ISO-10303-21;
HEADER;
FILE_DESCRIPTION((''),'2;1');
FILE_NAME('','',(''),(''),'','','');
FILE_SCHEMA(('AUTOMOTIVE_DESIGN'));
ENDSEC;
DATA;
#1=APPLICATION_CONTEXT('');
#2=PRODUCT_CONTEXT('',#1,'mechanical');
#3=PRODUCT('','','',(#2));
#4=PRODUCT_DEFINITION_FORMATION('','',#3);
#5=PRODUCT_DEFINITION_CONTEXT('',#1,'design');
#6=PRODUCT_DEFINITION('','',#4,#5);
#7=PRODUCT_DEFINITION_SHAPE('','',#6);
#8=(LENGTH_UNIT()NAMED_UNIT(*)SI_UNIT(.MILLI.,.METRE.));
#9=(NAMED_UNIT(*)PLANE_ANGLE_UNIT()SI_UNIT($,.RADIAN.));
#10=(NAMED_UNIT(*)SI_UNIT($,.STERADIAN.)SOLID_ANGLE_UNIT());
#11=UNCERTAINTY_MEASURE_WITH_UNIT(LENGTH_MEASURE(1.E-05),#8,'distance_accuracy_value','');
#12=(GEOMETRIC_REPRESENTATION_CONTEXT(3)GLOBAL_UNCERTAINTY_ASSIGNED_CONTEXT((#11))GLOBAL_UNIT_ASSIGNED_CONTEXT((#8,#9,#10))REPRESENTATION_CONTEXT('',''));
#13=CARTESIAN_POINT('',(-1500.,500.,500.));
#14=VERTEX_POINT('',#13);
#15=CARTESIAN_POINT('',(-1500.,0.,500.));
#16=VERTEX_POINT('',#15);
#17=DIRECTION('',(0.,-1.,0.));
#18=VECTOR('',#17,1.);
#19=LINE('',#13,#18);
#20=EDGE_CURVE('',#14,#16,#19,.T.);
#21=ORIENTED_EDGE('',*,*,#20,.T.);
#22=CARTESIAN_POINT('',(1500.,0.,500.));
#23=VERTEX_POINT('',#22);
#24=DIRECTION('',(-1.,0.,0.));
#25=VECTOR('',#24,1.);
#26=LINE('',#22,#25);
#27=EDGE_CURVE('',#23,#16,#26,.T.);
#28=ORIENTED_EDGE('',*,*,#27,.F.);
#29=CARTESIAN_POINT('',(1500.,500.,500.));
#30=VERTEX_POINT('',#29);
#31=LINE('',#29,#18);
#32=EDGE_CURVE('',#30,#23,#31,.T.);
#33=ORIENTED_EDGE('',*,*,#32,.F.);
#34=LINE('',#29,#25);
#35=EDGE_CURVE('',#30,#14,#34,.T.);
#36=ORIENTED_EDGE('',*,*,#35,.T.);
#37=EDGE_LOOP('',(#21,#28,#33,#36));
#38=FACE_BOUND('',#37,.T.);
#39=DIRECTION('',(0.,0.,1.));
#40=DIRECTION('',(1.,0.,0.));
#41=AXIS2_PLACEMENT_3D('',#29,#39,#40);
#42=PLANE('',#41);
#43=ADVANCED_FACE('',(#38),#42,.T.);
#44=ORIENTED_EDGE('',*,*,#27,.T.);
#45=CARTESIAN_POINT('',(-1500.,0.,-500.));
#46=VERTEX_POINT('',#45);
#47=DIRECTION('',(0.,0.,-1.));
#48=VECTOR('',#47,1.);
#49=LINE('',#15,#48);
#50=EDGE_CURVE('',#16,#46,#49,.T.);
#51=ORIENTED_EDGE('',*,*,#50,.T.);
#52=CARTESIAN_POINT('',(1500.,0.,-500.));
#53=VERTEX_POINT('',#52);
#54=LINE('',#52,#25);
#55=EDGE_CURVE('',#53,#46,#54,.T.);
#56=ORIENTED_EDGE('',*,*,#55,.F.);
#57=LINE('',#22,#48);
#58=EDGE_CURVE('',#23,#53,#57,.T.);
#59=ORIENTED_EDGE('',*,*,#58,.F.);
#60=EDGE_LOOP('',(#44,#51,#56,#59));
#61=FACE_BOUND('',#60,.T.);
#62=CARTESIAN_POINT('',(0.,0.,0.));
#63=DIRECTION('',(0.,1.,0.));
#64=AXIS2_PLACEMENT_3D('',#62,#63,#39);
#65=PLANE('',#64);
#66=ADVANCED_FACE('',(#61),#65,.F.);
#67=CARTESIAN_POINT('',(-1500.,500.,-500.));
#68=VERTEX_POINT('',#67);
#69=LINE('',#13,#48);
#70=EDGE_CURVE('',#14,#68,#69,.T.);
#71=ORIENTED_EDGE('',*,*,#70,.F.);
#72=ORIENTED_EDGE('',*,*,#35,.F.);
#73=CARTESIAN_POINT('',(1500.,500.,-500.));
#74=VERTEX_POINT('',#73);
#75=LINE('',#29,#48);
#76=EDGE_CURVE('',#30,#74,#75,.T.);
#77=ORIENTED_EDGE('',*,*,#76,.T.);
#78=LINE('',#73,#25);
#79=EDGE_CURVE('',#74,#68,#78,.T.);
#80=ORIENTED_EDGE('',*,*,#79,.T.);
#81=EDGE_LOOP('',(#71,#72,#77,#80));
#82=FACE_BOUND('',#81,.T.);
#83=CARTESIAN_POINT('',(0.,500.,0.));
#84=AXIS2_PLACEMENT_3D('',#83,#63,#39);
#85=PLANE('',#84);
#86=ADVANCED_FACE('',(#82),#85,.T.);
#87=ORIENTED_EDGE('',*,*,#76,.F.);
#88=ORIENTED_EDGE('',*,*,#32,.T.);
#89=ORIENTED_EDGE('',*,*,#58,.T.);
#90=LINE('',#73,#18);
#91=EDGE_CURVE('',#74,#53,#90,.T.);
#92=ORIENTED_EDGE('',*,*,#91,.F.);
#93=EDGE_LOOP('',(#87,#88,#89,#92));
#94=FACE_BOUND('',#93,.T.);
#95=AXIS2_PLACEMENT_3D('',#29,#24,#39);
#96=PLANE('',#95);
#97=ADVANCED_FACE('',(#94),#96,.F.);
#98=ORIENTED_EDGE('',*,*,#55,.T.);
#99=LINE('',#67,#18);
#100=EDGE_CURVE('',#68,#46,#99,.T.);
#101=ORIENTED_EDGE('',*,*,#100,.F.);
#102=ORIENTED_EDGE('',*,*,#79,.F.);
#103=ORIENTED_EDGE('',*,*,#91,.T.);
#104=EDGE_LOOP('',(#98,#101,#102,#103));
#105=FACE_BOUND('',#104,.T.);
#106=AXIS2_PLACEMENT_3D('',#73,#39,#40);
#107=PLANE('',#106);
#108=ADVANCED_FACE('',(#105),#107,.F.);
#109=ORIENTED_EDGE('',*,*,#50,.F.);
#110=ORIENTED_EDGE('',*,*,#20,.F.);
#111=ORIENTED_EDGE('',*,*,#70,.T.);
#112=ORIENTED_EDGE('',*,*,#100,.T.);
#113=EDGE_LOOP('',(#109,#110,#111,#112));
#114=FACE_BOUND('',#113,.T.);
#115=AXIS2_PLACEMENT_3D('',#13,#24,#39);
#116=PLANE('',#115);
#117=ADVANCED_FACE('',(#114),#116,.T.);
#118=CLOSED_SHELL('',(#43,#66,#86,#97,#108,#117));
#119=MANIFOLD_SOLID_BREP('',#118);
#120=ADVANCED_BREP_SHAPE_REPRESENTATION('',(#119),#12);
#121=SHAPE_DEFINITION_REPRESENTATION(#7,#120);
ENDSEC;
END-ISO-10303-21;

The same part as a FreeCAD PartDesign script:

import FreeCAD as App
import Part
import Sketcher

doc = App.newDocument("Part")
params = doc.addObject("Spreadsheet::Sheet", "Params")
for row, (alias, value) in enumerate([
    ("sketch1_width", "3000 mm"),
    ("sketch1_height", "1000 mm"),
    ("pad1_length", "500 mm"),
], start=1):
    params.set(f"A{row}", alias)
    params.set(f"B{row}", "=" + value)
    params.setAlias(f"B{row}", alias)

body = doc.addObject("PartDesign::Body", "Body")

# Sketch on XZ plane
sketch1 = body.newObject("Sketcher::SketchObject", "Sketch")
sketch1.AttachmentSupport = (doc.getObject("XZ_Plane"), [""])
sketch1.MapMode = "FlatFace"
sketch1.addGeometry(Part.LineSegment(App.Vector(-1500, -500, 0), App.Vector(-1500, 500, 0)), False)
sketch1.addGeometry(Part.LineSegment(App.Vector(-1500, 500, 0), App.Vector(1500, 500, 0)), False)
sketch1.addGeometry(Part.LineSegment(App.Vector(1500, 500, 0), App.Vector(1500, -500, 0)), False)
sketch1.addGeometry(Part.LineSegment(App.Vector(1500, -500, 0), App.Vector(-1500, -500, 0)), False)
sketch1.addConstraint(Sketcher.Constraint("Coincident", 0, 2, 1, 1))
sketch1.addConstraint(Sketcher.Constraint("Coincident", 1, 2, 2, 1))
sketch1.addConstraint(Sketcher.Constraint("Coincident", 2, 2, 3, 1))
sketch1.addConstraint(Sketcher.Constraint("Coincident", 3, 2, 0, 1))
sketch1.addConstraint(Sketcher.Constraint("Vertical", 0))
sketch1.addConstraint(Sketcher.Constraint("Horizontal", 1))
sketch1.addConstraint(Sketcher.Constraint("Vertical", 2))
sketch1.addConstraint(Sketcher.Constraint("Horizontal", 3))
sketch1.addConstraint(Sketcher.Constraint("Symmetric", 0, 2, 2, 2, -1, 1))
sketch1.addConstraint(Sketcher.Constraint("DistanceX", 1, 1, 1, 2, 3000.0))
sketch1.addConstraint(Sketcher.Constraint("DistanceY", 0, 1, 0, 2, 1000.0))
sketch1.setExpression("Constraints[9]", "Params.sketch1_width")
sketch1.setExpression("Constraints[10]", "Params.sketch1_height")
pad1 = body.newObject("PartDesign::Pad", "Pad")
pad1.Profile = sketch1
pad1.setExpression("Length", "Params.pad1_length")
pad1.Reversed = True

doc.recompute()
